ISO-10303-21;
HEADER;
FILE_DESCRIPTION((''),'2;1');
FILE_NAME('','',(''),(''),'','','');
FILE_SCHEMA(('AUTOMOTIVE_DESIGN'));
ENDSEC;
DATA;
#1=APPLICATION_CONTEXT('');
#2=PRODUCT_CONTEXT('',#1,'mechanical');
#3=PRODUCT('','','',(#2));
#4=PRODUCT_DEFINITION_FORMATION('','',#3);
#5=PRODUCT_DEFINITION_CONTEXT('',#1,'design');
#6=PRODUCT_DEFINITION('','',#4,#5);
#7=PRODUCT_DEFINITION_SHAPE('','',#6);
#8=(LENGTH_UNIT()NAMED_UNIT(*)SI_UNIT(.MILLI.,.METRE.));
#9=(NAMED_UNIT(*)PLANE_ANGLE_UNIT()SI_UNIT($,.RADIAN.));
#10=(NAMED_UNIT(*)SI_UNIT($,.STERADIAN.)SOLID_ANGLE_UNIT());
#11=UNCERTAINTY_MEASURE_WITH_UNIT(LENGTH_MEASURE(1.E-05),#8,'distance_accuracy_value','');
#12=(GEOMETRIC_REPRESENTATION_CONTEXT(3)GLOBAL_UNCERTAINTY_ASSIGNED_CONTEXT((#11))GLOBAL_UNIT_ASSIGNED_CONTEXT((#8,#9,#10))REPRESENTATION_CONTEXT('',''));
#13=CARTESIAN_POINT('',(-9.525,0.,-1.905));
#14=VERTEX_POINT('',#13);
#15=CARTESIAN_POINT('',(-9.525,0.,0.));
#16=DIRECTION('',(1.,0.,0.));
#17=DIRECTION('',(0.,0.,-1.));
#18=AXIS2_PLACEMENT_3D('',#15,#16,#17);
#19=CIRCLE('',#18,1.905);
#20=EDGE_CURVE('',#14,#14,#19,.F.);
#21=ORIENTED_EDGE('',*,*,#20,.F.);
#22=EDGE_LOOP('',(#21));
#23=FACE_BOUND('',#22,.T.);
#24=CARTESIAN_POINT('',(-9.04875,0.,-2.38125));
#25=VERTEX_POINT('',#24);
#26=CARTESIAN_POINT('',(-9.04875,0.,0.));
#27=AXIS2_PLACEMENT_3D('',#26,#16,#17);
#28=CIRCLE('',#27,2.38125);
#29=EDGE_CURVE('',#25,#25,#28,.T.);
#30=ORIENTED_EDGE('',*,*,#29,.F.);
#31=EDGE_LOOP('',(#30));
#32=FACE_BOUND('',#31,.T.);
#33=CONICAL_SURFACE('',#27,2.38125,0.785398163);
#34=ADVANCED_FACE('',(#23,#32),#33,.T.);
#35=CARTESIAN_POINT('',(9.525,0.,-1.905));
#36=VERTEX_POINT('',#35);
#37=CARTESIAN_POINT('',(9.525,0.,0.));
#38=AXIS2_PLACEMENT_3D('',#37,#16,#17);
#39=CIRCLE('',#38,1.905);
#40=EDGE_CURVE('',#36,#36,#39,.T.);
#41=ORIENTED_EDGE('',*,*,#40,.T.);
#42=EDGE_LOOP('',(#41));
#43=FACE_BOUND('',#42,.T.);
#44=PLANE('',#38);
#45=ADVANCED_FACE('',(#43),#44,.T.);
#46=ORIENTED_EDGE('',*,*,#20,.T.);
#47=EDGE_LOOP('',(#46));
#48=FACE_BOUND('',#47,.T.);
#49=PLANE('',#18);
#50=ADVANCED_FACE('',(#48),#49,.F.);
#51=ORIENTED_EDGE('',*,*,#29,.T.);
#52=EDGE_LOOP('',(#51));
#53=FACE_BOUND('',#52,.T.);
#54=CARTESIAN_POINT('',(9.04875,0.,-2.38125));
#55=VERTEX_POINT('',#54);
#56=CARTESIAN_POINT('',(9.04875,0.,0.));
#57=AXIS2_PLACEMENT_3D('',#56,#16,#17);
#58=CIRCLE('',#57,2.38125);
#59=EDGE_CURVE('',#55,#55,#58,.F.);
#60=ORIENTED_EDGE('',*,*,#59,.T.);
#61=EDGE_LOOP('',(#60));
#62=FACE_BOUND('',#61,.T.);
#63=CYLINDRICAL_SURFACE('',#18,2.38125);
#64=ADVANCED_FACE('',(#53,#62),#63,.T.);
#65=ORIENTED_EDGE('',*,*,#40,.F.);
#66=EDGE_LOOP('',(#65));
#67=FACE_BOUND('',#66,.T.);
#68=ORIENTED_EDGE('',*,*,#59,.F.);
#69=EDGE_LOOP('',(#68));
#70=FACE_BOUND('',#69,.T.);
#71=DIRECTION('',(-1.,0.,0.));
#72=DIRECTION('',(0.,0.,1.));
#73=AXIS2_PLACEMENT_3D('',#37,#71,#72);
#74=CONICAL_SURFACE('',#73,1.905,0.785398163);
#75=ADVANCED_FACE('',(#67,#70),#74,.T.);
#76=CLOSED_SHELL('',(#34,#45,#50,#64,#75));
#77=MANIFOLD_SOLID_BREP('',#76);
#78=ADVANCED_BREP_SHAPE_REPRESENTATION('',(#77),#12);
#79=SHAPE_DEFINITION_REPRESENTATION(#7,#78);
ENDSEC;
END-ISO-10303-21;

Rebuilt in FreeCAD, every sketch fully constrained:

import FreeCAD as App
import Part
import Sketcher
from FreeCAD import Vector
Q = App.Units.Quantity


def edges_at(feature, points):
    """Names of the edges that pass closest to the given points."""
    edges = feature.Shape.Edges
    near = lambda p: min(range(len(edges)), key=lambda i: edges[i].distToShape(Part.Vertex(*p))[0])
    return sorted({f"Edge{near(p) + 1}" for p in points})

doc = App.newDocument("Part")
body = doc.addObject("PartDesign::Body", "Body")

sketch1 = body.newObject("Sketcher::SketchObject", "Sketch")
sketch1.AttachmentSupport = (doc.getObject("YZ_Plane"), [""])
sketch1.MapMode = "FlatFace"
sketch1.addGeometry(Part.Circle(Vector(0, 0, 0), Vector(0, 0, 1), 2.4), False)
sketch1.addConstraint(Sketcher.Constraint("Coincident", 0, 3, -1, 1))
sketch1.addConstraint(Sketcher.Constraint("Diameter", 0, Q("0.1875 in")))
pad1 = body.newObject("PartDesign::Pad", "Pad")
pad1.Profile = sketch1
pad1.Type = "TwoLengths"
pad1.Length = Q("0.375 in")
pad1.Length2 = Q("0.375 in")
doc.recompute()

chamfer = body.newObject("PartDesign::Chamfer", "Chamfer")
chamfer.Base = (pad1, edges_at(pad1, [(-9.525, 0, 2.381), (9.525, 0, 2.381)]))
chamfer.Size = 0.47625

doc.recompute()
